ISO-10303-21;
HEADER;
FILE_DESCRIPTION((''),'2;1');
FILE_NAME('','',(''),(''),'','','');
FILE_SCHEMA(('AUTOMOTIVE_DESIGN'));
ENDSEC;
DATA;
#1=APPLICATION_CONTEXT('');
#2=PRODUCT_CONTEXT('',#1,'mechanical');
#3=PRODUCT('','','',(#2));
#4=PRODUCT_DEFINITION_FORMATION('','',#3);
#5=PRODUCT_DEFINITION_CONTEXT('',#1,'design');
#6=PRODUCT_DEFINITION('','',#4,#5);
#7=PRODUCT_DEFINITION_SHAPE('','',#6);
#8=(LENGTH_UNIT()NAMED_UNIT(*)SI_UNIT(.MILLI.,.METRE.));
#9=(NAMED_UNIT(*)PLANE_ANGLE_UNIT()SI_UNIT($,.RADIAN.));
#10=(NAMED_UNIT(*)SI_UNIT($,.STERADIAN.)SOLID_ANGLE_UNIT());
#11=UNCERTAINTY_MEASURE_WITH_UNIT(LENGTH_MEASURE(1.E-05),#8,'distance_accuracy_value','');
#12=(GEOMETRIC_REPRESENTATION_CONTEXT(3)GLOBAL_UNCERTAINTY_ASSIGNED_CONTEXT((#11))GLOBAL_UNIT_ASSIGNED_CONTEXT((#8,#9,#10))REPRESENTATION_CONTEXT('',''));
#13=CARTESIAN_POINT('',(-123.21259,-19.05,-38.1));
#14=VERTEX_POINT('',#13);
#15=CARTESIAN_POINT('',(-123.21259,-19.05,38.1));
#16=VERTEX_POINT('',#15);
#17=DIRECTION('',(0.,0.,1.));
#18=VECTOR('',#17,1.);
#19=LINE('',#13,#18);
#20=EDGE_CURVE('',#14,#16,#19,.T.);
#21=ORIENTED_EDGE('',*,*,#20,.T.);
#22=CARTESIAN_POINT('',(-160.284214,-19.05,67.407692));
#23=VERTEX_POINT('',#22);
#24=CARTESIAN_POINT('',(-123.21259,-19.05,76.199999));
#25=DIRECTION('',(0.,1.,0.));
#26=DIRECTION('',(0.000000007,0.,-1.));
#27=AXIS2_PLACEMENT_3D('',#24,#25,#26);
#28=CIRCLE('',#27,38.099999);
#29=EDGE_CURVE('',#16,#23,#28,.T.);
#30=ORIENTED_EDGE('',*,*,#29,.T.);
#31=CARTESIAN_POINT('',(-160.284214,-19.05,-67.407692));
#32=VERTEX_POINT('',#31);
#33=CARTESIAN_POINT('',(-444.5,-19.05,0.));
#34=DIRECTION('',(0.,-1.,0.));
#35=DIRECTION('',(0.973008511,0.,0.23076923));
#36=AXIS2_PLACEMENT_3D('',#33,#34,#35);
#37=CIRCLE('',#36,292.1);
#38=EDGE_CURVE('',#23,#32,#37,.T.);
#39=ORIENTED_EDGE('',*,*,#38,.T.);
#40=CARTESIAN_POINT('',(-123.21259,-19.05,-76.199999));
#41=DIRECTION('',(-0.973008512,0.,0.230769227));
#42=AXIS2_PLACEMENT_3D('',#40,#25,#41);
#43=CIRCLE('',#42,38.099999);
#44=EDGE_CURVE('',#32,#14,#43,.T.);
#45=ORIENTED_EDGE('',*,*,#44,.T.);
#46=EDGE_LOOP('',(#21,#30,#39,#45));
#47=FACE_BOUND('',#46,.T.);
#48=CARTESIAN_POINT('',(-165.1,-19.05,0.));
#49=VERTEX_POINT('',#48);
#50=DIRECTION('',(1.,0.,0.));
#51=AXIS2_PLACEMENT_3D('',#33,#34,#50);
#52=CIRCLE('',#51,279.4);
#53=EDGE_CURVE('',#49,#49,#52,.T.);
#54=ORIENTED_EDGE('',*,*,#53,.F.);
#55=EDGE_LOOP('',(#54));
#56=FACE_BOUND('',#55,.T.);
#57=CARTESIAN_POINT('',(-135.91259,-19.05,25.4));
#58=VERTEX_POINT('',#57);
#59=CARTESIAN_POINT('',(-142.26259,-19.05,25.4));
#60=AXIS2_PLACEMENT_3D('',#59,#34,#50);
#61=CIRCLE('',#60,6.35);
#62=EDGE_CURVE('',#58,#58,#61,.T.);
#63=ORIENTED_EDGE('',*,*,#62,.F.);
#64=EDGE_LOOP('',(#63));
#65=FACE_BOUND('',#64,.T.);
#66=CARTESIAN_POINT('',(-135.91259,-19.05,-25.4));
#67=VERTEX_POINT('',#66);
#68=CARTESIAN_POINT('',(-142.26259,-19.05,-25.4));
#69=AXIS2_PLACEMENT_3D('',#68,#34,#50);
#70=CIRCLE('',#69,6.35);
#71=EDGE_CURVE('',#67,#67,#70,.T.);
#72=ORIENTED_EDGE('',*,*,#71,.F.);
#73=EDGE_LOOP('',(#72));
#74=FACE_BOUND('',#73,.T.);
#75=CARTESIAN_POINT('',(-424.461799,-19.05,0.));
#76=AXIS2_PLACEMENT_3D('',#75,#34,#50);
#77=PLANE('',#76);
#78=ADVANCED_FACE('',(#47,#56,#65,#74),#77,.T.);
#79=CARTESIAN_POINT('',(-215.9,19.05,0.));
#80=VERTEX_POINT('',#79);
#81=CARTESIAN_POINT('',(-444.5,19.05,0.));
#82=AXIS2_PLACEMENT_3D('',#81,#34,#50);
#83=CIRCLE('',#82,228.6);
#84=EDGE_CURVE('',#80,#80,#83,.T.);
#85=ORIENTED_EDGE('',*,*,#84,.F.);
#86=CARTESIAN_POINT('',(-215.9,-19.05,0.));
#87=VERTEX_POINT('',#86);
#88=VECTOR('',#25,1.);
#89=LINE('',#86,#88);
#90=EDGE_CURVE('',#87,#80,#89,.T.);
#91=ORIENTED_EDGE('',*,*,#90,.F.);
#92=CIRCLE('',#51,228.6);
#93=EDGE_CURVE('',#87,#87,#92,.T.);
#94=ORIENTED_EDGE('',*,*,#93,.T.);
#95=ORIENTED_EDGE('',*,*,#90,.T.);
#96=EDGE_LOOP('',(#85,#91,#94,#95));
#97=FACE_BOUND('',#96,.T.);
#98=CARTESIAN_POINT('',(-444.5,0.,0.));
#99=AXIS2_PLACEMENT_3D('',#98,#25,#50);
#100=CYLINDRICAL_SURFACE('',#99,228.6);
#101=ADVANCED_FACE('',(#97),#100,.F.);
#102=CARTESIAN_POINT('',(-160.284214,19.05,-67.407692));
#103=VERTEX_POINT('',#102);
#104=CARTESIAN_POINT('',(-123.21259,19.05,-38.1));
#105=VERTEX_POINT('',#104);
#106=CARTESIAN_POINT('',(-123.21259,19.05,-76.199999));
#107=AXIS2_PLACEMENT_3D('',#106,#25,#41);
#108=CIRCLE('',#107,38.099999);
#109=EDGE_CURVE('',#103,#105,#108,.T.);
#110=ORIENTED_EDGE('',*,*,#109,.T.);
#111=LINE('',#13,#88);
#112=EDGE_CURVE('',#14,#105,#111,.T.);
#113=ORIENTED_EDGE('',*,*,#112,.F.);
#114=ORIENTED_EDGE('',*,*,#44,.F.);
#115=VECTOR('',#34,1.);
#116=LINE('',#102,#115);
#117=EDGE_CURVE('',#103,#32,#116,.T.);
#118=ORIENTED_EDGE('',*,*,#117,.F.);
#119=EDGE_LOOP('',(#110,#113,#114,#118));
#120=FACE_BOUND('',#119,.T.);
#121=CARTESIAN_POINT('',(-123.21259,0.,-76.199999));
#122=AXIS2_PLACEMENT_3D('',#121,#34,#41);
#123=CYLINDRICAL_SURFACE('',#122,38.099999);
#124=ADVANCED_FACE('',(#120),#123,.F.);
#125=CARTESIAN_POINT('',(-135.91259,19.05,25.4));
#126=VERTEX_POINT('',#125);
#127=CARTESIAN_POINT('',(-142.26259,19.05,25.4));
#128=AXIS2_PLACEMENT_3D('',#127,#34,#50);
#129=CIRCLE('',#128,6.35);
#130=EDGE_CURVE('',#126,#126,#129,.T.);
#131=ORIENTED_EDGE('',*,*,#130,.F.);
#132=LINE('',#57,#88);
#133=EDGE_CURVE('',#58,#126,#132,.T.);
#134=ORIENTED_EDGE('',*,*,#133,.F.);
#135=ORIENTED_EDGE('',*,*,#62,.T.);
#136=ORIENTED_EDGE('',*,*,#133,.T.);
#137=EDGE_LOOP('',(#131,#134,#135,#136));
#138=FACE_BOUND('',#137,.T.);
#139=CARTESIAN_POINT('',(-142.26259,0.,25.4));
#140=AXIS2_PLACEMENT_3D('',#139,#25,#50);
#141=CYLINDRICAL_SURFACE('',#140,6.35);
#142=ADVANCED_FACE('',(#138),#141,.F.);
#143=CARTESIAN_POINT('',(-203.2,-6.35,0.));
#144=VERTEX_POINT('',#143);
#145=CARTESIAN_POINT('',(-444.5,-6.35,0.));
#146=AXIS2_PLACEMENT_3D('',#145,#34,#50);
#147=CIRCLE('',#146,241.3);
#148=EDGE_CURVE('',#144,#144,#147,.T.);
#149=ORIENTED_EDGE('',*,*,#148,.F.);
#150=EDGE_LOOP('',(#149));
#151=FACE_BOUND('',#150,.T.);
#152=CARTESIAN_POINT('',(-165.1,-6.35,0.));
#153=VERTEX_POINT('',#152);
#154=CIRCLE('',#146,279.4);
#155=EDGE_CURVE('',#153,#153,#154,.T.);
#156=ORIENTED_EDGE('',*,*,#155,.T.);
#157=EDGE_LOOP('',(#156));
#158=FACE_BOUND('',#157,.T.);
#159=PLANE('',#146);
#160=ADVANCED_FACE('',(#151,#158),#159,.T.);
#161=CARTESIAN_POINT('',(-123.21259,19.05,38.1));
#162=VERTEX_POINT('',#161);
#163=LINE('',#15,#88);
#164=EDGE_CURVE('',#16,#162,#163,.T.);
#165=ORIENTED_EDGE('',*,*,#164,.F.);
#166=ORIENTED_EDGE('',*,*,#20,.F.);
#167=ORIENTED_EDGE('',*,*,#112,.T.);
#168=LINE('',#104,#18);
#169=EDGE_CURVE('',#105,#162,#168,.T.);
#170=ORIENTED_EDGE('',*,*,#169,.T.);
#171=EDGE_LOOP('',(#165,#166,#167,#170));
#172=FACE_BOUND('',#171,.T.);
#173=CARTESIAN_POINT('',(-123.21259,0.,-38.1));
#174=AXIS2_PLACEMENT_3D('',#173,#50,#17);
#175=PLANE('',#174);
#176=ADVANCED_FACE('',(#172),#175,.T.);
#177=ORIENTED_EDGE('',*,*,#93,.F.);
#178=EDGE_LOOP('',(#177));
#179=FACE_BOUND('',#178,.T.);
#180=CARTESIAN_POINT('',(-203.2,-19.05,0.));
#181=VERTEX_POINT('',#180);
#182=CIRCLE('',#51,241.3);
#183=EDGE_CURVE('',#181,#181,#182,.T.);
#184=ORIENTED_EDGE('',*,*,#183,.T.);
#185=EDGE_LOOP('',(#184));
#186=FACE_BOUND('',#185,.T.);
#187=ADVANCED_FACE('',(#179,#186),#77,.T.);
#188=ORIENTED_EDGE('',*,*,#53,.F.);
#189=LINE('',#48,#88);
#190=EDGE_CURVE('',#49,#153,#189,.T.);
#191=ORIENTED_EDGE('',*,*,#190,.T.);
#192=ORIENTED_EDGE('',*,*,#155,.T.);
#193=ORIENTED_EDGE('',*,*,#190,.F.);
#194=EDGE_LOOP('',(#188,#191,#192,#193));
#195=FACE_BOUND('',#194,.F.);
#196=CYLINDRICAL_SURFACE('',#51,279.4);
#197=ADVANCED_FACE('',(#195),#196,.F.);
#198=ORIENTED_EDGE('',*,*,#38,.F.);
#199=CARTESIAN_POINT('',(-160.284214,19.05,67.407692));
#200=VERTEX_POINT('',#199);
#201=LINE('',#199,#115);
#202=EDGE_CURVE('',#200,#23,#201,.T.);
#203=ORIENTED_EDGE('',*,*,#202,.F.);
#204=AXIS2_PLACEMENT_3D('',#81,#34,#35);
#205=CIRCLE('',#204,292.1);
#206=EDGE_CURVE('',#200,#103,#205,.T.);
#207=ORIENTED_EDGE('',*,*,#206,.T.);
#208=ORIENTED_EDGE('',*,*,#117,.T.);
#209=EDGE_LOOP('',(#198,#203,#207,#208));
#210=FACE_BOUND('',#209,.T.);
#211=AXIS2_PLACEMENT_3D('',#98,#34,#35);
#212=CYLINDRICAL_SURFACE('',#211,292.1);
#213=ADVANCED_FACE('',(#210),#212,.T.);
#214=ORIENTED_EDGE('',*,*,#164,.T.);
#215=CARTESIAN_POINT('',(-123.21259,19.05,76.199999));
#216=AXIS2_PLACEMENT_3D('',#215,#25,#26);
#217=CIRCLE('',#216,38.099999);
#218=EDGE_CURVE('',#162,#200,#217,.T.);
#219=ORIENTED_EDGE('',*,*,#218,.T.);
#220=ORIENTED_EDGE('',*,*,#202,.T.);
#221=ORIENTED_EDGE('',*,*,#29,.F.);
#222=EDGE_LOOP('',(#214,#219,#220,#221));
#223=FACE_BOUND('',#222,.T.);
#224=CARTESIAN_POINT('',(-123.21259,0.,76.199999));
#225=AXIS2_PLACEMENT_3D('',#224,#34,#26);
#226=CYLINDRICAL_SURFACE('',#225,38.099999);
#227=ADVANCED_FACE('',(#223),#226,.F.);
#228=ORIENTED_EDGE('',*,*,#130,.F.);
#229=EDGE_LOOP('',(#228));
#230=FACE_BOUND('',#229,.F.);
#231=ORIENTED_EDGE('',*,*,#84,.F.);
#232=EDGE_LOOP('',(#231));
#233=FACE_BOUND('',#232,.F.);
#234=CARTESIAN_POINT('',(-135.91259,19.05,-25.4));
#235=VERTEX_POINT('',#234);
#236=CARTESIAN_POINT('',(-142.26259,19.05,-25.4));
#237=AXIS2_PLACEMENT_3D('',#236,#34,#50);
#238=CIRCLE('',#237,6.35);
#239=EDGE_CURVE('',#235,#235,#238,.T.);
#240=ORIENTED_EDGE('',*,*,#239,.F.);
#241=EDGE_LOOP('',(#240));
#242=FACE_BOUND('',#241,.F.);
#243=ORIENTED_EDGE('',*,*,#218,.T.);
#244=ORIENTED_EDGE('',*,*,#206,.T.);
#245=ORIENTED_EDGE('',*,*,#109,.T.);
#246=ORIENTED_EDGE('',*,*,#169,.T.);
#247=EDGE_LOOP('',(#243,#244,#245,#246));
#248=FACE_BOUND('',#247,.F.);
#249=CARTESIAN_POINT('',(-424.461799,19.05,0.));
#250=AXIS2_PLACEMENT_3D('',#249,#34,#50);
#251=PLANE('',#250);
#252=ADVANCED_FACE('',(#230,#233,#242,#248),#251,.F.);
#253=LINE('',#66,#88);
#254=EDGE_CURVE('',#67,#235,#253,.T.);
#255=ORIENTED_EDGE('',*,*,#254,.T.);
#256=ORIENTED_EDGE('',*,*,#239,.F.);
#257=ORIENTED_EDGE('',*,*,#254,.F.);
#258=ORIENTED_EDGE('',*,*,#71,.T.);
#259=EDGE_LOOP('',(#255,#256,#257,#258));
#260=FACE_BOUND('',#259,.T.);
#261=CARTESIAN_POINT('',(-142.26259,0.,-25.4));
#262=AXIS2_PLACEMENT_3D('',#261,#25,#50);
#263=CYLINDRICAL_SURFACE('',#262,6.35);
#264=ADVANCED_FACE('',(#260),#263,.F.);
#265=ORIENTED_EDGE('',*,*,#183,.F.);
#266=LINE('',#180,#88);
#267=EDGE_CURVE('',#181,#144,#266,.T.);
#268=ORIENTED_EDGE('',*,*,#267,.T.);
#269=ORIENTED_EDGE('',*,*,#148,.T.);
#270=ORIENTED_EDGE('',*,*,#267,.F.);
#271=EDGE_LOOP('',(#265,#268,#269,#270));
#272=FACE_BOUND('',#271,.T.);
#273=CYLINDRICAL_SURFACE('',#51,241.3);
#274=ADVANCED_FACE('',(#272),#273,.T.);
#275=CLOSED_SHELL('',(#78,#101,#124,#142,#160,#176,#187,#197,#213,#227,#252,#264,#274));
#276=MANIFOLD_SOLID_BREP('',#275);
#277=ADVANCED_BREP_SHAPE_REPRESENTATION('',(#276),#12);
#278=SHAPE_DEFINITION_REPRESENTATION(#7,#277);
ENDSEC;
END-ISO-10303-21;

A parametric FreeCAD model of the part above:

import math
import FreeCAD as App
import Part
import Sketcher

V = App.Vector
Q = App.Units.Quantity

doc = App.newDocument("Part")
params = doc.addObject("Spreadsheet::Sheet", "Params")
for row, (alias, value) in enumerate([
    ("sketch1_diameter", "18 in"),
    ("sketch1_diameter2", "0.5 in"),
    ("sketch1_radius", "1.5 in"),
    ("sketch1_radius2", "11.5 in"),
    ("sketch1_height", "3 in"),
    ("pad1_length", "1.5 in"),
    ("sketch2_diameter", "22 in"),
    ("sketch2_diameter2", "19 in"),
    ("pocket1_length", "0.5 in"),
], start=1):
    params.set(f"A{row}", alias)
    params.set(f"B{row}", "=" + value)
    params.setAlias(f"B{row}", alias)

body = doc.addObject("PartDesign::Body", "Body")

# Sketch on XZ plane
sketch1 = body.newObject("Sketcher::SketchObject", "Sketch")
sketch1.AttachmentSupport = (doc.getObject("XZ_Plane"), [""])
sketch1.MapMode = "FlatFace"
sketch1.addGeometry(Part.ArcOfCircle(Part.Circle(V(-123, 76, 0), V(0, 0, 1), 38), math.radians(-167), math.radians(-90)), False)
sketch1.addGeometry(Part.ArcOfCircle(Part.Circle(V(-445, 0, 0), V(0, 0, 1), 292), math.radians(13), math.radians(347)), False)
sketch1.addGeometry(Part.ArcOfCircle(Part.Circle(V(-123, -76, 0), V(0, 0, 1), 38), math.radians(90), math.radians(167)), False)
sketch1.addGeometry(Part.LineSegment(V(-123, -38, 0), V(-123, 38, 0)), False)
sketch1.addGeometry(Part.Circle(V(-142, -25, 0), V(0, 0, 1), 6), False)
sketch1.addGeometry(Part.Circle(V(-444, 0, 0), V(0, 0, 1), 229), False)
sketch1.addGeometry(Part.Circle(V(-142, 25, 0), V(0, 0, 1), 6), False)
sketch1.addConstraint(Sketcher.Constraint("Tangent", 0, 1, 1, 1))
sketch1.addConstraint(Sketcher.Constraint("Tangent", 1, 2, 2, 2))
sketch1.addConstraint(Sketcher.Constraint("Coincident", 2, 1, 3, 1))
sketch1.addConstraint(Sketcher.Constraint("Coincident", 3, 2, 0, 2))
sketch1.addConstraint(Sketcher.Constraint("Vertical", 3))
sketch1.addConstraint(Sketcher.Constraint("Coincident", 5, 3, 1, 3))
sketch1.addConstraint(Sketcher.Constraint("Equal", 0, 2))
sketch1.addConstraint(Sketcher.Constraint("Equal", 4, 6))
sketch1.addConstraint(Sketcher.Constraint("Symmetric", 0, 3, 2, 3, -1))
sketch1.addConstraint(Sketcher.Constraint("Symmetric", 4, 3, 6, 3, -1))
sketch1.addConstraint(Sketcher.Constraint("Vertical", 0, 3, 2, 1))
sketch1.addConstraint(Sketcher.Constraint("Diameter", 5, Q("18 in")))
sketch1.addConstraint(Sketcher.Constraint("Diameter", 4, Q("0.5 in")))
sketch1.addConstraint(Sketcher.Constraint("Radius", 0, Q("1.5 in")))
sketch1.addConstraint(Sketcher.Constraint("Radius", 1, Q("11.5 in")))
sketch1.addConstraint(Sketcher.Constraint("DistanceY", 3, 1, 3, 2, Q("3 in")))
sketch1.addConstraint(Sketcher.Constraint("DistanceY", 4, 3, -1, 1, Q("1 in")))
sketch1.addConstraint(Sketcher.Constraint("DistanceX", 1, 3, -1, 1, Q("17.5 in")))
sketch1.addConstraint(Sketcher.Constraint("DistanceX", 4, 3, 2, 3, Q("0.75 in")))
sketch1.setExpression("Constraints[11]", "Params.sketch1_diameter")
sketch1.setExpression("Constraints[12]", "Params.sketch1_diameter2")
sketch1.setExpression("Constraints[13]", "Params.sketch1_radius")
sketch1.setExpression("Constraints[14]", "Params.sketch1_radius2")
sketch1.setExpression("Constraints[15]", "Params.sketch1_height")
pad1 = body.newObject("PartDesign::Pad", "Pad")
pad1.Profile = sketch1
pad1.setExpression("Length", "Params.pad1_length")
pad1.Midplane = True

# Sketch on XZ plane
sketch2 = body.newObject("Sketcher::SketchObject", "Sketch001")
sketch2.AttachmentSupport = (doc.getObject("XZ_Plane"), [""])
sketch2.MapMode = "FlatFace"
sketch2.AttachmentOffset = App.Placement(V(0, 0, 0.75 * 25.4), App.Rotation())
sketch2.addGeometry(Part.Circle(V(-444, 0, 0), V(0, 0, 1), 279), False)
sketch2.addGeometry(Part.Circle(V(-444, 0, 0), V(0, 0, 1), 241), False)
sketch2.addConstraint(Sketcher.Constraint("Coincident", 1, 3, 0, 3))
sketch2.addConstraint(Sketcher.Constraint("PointOnObject", 0, 3, -1))
sketch2.addConstraint(Sketcher.Constraint("Diameter", 0, Q("22 in")))
sketch2.addConstraint(Sketcher.Constraint("Diameter", 1, Q("19 in")))
sketch2.addConstraint(Sketcher.Constraint("DistanceX", 0, 3, -1, 1, Q("17.5 in")))
sketch2.setExpression("Constraints[2]", "Params.sketch2_diameter")
sketch2.setExpression("Constraints[3]", "Params.sketch2_diameter2")
pocket1 = body.newObject("PartDesign::Pocket", "Pocket")
pocket1.Profile = sketch2
pocket1.setExpression("Length", "Params.pocket1_length")

doc.recompute()
